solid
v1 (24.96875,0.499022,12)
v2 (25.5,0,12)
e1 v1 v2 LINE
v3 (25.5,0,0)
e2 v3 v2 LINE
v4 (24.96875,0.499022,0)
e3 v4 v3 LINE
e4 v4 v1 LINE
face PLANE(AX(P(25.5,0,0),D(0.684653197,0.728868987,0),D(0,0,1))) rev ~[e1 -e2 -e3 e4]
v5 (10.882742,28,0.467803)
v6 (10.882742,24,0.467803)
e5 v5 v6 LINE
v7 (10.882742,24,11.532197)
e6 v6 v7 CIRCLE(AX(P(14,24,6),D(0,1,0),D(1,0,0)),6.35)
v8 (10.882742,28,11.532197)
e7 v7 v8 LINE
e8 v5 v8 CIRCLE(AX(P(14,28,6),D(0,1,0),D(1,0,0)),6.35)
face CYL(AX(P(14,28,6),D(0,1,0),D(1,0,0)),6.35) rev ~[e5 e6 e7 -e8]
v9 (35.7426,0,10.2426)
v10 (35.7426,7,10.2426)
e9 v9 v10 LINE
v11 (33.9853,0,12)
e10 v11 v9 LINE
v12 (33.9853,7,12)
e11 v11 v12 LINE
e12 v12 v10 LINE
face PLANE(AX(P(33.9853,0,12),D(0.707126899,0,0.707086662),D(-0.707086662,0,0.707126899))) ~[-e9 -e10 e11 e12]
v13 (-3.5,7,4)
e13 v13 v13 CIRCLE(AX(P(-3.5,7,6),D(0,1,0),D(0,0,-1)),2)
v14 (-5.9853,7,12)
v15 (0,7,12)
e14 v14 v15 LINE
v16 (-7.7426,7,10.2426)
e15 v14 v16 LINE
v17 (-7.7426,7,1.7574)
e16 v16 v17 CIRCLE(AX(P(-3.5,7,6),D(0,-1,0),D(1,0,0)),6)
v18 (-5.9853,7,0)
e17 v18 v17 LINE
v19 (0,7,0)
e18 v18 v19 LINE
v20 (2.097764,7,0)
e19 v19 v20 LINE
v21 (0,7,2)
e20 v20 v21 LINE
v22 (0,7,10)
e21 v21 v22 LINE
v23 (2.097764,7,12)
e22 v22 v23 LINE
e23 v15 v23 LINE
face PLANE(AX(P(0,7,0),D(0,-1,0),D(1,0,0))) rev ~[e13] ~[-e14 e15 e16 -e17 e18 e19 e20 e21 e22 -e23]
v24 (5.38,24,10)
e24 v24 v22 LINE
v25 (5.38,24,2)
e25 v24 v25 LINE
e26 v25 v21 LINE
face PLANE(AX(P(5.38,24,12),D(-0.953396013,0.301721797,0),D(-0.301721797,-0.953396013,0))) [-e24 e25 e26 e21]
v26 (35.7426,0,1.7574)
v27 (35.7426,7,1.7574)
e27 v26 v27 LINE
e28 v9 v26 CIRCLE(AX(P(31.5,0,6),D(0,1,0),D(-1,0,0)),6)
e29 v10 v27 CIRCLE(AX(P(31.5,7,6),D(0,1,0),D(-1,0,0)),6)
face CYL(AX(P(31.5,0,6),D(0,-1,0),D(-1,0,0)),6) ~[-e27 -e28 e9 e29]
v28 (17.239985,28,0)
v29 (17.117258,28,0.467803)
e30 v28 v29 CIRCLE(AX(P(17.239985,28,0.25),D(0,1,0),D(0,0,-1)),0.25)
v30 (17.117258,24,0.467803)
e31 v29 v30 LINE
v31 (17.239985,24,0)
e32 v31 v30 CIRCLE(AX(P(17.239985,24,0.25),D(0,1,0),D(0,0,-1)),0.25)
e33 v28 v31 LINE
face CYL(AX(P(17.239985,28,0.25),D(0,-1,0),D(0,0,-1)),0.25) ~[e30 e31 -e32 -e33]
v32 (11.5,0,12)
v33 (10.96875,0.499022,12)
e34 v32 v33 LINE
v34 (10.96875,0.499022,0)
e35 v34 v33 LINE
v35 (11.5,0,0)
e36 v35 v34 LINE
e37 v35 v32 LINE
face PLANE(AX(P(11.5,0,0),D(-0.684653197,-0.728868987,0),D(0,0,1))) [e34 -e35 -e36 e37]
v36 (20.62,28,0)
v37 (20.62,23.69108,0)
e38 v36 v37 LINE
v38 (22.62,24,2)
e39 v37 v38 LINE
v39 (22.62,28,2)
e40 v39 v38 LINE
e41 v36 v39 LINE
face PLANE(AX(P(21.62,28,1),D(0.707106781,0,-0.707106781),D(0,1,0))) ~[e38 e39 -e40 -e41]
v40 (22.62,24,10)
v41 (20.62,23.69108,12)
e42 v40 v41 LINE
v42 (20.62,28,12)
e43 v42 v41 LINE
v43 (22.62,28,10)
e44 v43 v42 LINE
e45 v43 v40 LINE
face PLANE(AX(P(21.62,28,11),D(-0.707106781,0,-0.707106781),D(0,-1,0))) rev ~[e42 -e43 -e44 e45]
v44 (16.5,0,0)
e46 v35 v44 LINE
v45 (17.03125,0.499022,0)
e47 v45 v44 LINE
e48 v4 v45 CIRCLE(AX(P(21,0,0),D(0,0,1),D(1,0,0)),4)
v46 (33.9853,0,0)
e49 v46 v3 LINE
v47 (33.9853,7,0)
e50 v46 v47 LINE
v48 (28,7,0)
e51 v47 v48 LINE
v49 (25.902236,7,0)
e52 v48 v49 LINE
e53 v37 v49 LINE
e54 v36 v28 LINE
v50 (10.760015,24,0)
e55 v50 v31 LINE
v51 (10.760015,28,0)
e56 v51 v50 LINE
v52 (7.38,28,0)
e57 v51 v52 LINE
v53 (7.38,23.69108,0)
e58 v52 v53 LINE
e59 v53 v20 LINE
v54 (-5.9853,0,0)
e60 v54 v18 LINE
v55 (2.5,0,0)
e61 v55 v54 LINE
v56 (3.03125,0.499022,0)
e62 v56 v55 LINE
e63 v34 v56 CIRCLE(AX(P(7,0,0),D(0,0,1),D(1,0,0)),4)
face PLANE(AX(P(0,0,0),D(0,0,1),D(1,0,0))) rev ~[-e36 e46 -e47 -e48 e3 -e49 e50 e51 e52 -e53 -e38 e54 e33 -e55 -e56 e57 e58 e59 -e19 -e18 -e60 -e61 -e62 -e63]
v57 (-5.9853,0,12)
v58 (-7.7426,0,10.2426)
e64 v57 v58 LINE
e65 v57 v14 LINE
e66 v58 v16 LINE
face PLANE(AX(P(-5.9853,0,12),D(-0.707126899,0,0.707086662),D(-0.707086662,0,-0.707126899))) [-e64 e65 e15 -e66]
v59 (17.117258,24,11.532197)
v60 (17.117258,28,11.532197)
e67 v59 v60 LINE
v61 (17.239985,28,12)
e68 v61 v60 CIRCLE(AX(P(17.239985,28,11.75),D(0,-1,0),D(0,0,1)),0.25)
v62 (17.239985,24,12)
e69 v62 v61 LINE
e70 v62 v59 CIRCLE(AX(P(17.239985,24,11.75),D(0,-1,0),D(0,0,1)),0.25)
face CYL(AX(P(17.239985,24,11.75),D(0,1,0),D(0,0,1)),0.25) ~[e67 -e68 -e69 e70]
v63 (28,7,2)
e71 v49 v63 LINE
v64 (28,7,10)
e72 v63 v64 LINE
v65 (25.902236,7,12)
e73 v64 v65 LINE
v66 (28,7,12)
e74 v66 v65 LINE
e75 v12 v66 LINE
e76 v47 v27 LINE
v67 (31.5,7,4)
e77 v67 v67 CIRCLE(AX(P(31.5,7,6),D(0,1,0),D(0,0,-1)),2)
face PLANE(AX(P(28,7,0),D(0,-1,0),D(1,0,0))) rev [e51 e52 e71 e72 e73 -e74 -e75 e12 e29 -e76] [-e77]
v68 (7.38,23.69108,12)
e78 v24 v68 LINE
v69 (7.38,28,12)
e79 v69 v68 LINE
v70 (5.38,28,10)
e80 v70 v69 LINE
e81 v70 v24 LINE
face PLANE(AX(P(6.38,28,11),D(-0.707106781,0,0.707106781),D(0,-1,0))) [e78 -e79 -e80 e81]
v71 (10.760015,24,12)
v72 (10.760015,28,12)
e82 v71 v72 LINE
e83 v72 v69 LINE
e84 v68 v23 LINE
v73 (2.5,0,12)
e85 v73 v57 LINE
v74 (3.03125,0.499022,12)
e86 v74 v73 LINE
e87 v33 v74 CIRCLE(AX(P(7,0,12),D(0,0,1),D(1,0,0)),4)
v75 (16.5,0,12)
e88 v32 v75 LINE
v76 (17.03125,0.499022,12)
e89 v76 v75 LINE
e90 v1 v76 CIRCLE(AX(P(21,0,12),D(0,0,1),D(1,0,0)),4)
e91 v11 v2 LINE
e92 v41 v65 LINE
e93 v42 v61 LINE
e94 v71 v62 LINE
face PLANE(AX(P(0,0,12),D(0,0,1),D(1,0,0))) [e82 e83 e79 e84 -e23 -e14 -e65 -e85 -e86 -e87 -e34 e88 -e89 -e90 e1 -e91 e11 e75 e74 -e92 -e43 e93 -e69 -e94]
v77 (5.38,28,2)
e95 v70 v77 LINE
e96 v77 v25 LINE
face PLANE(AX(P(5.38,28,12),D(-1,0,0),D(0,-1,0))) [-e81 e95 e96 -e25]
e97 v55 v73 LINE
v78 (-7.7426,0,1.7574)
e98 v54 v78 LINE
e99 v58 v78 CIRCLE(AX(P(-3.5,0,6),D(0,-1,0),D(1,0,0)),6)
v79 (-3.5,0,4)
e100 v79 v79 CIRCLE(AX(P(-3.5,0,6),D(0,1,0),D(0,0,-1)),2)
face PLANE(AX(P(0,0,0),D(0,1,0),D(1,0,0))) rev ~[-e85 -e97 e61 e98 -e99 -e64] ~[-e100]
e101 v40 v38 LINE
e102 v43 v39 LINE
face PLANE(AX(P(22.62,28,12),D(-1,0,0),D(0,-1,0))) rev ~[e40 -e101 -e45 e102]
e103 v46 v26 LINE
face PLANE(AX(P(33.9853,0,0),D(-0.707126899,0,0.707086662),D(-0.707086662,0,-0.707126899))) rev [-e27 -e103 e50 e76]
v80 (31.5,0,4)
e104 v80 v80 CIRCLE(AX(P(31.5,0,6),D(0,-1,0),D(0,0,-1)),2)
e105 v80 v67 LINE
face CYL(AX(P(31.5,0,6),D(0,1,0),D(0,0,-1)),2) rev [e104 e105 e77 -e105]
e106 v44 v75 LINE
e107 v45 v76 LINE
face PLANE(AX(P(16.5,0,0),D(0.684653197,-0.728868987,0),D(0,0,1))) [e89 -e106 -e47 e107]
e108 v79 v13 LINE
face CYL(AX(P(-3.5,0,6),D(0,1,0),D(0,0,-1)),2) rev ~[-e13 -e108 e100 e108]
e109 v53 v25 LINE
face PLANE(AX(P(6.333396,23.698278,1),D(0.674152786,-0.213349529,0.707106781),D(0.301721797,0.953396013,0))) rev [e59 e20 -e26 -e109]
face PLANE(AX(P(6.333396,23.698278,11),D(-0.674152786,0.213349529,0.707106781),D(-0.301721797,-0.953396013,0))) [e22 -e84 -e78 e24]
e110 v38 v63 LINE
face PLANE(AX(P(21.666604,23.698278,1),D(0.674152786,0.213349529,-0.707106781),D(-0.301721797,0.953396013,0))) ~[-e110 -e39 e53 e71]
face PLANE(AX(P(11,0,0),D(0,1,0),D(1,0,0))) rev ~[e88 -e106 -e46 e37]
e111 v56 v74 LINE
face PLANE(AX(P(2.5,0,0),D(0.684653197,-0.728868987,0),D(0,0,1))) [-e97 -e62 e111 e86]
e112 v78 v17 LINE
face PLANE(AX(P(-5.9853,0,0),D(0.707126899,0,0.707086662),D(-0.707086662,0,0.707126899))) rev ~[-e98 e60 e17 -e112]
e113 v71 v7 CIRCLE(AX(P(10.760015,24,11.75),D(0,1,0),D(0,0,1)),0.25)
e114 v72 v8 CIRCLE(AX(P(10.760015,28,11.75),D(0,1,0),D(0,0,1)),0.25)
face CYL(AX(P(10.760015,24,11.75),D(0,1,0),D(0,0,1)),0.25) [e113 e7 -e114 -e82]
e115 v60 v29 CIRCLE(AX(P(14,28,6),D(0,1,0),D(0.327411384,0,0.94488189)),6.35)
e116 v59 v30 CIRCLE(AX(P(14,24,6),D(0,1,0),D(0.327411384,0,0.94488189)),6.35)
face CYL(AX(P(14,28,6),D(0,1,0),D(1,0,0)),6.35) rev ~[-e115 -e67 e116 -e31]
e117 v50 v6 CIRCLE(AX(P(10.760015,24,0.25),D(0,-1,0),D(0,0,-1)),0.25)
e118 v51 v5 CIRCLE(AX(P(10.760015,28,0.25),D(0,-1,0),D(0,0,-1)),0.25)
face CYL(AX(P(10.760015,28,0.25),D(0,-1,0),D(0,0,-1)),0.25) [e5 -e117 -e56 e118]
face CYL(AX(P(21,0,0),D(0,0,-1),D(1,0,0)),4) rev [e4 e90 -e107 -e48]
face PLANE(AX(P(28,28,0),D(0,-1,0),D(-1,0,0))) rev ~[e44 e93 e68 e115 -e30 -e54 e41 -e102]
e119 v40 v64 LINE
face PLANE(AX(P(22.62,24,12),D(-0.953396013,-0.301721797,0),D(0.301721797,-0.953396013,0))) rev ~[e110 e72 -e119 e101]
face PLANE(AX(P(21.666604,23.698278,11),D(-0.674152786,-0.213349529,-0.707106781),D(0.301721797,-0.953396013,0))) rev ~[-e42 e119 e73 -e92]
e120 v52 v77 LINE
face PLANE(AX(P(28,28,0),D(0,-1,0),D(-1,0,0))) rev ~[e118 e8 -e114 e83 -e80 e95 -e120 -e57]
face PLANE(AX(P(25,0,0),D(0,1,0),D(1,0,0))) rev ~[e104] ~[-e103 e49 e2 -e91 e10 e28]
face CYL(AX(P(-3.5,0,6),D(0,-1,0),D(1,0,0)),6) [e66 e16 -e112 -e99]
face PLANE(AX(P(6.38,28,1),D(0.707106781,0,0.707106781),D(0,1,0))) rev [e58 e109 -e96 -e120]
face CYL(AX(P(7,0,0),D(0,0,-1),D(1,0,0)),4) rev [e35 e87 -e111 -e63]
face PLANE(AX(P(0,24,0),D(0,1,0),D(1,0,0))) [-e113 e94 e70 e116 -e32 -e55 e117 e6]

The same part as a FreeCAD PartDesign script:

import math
import FreeCAD as App
import Part
import Sketcher
Q = App.Units.Quantity


def edges_at(feature, points):
    """Names of the edges that pass closest to the given points."""
    edges = feature.Shape.Edges
    near = lambda p: min(range(len(edges)), key=lambda i: edges[i].distToShape(Part.Vertex(*p))[0])
    return sorted({f"Edge{near(p) + 1}" for p in points})

doc = App.newDocument("Part")
body = doc.addObject("PartDesign::Body", "Body")

sketch1 = body.newObject("Sketcher::SketchObject", "Sketch")
sketch1.AttachmentSupport = (doc.getObject("XY_Plane"), [""])
sketch1.MapMode = "FlatFace"
sketch1.addGeometry([
    Part.ArcOfCircle(Part.Circle(App.Vector(21, 0, 0), App.Vector(0, 0, 1), 4), math.radians(0), math.radians(180)),
    Part.LineSegment(App.Vector(25, 0, 0), App.Vector(28, 0, 0)),
    Part.LineSegment(App.Vector(28, 0, 0), App.Vector(28, 28, 0)),
    Part.LineSegment(App.Vector(28, 28, 0), App.Vector(0, 28, 0)),
    Part.LineSegment(App.Vector(0, 28, 0), App.Vector(0, 0, 0)),
    Part.LineSegment(App.Vector(0, 0, 0), App.Vector(3, 0, 0)),
    Part.ArcOfCircle(Part.Circle(App.Vector(7, 0, 0), App.Vector(0, 0, 1), 4), math.radians(0), math.radians(180)),
    Part.LineSegment(App.Vector(11, 0, 0), App.Vector(17, 0, 0)),
], False)
sketch1.addConstraint([
    Sketcher.Constraint("Coincident", 0, 1, 1, 1),
    Sketcher.Constraint("Coincident", 1, 2, 2, 1),
    Sketcher.Constraint("Coincident", 2, 2, 3, 1),
    Sketcher.Constraint("Coincident", 3, 2, 4, 1),
    Sketcher.Constraint("Coincident", 4, 2, 5, 1),
    Sketcher.Constraint("Coincident", 5, 2, 6, 2),
    Sketcher.Constraint("Coincident", 6, 1, 7, 1),
    Sketcher.Constraint("Coincident", 7, 2, 0, 2),
    Sketcher.Constraint("Horizontal", 1),
    Sketcher.Constraint("Vertical", 2),
    Sketcher.Constraint("Horizontal", 3),
    Sketcher.Constraint("Vertical", 4),
    Sketcher.Constraint("Horizontal", 5),
    Sketcher.Constraint("Horizontal", 7),
    Sketcher.Constraint("Coincident", 4, 2, -1, 1),
    Sketcher.Constraint("Equal", 0, 6),
    Sketcher.Constraint("PointOnObject", 0, 3, -1),
    Sketcher.Constraint("PointOnObject", 6, 3, -1),
    Sketcher.Constraint("PointOnObject", 0, 1, -1),
    Sketcher.Constraint("PointOnObject", 6, 1, -1),
    Sketcher.Constraint("Equal", 1, 5),
    Sketcher.Constraint("Equal", 3, 2),
    Sketcher.Constraint("Radius", 0, Q("4 mm")),
    Sketcher.Constraint("DistanceX", 3, 2, 3, 1, Q("28 mm")),
    Sketcher.Constraint("DistanceX", -1, 1, 6, 3, Q("7 mm")),
])
pad1 = body.newObject("PartDesign::Pad", "Pad")
pad1.Profile = sketch1
pad1.Length = 12
doc.recompute()

chamfer = body.newObject("PartDesign::Chamfer", "Chamfer")
chamfer.Base = (pad1, edges_at(pad1, [
    (3, 0, 6),
    (11, 0, 6),
    (17, 0, 6),
    (25, 0, 6),
]))
chamfer.Size = 0.5

sketch2 = body.newObject("Sketcher::SketchObject", "Sketch001")
sketch2.AttachmentSupport = (doc.getObject("XZ_Plane"), [""])
sketch2.MapMode = "FlatFace"
sketch2.AttachmentOffset = App.Placement(App.Vector(0, 0, -28), App.Rotation())
sketch2.addGeometry([
    Part.ArcOfCircle(Part.Circle(App.Vector(14, 6, 0), App.Vector(0, 0, 1), 6.35), math.radians(-70.888268), math.radians(250.888268)),
    Part.LineSegment(App.Vector(16.079062, 0, 0), App.Vector(11.920938, 0, 0)),
], False)
sketch2.addConstraint([
    Sketcher.Constraint("Coincident", 0, 1, 1, 1),
    Sketcher.Constraint("Coincident", 1, 2, 0, 2),
    Sketcher.Constraint("Horizontal", 1),
    Sketcher.Constraint("PointOnObject", 0, 1, -1),
    Sketcher.Constraint("Radius", 0, Q("6.35 mm")),
    Sketcher.Constraint("DistanceX", -1, 1, 0, 3, Q("14 mm")),
    Sketcher.Constraint("DistanceY", -1, 1, 0, 3, Q("6 mm")),
])
pocket1 = body.newObject("PartDesign::Pocket", "Pocket")
pocket1.Profile = sketch2
pocket1.Length = 4
pocket1.Reversed = True
doc.recompute()

fillet = body.newObject("PartDesign::Fillet", "Fillet")
fillet.Base = (pocket1, edges_at(pocket1, [
    (11.921, 26, 0),
    (16.079, 26, 0),
    (11.921, 26, 12),
    (16.079, 26, 12),
]))
fillet.Radius = 0.25

sketch3 = body.newObject("Sketcher::SketchObject", "Sketch002")
sketch3.AttachmentSupport = (doc.getObject("XZ_Plane"), [""])
sketch3.MapMode = "FlatFace"
sketch3.addGeometry([
    Part.LineSegment(App.Vector(0, 12, 0), App.Vector(-5.9853, 12, 0)),
    Part.LineSegment(App.Vector(-5.9853, 12, 0), App.Vector(-7.7426, 10.2426, 0)),
    Part.ArcOfCircle(Part.Circle(App.Vector(-3.5, 6, 0), App.Vector(0, 0, 1), 6), math.radians(135), math.radians(225)),
    Part.LineSegment(App.Vector(-7.7426, 1.7574, 0), App.Vector(-5.9853, 0, 0)),
    Part.LineSegment(App.Vector(-5.9853, 0, 0), App.Vector(0, 0, 0)),
    Part.LineSegment(App.Vector(0, 0, 0), App.Vector(0, 12, 0)),
], False)
sketch3.addConstraint([
    Sketcher.Constraint("Coincident", 0, 2, 1, 1),
    Sketcher.Constraint("Tangent", 1, 2, 2, 1),
    Sketcher.Constraint("Tangent", 2, 2, 3, 1),
    Sketcher.Constraint("Coincident", 3, 2, 4, 1),
    Sketcher.Constraint("Coincident", 4, 2, 5, 1),
    Sketcher.Constraint("Coincident", 5, 2, 0, 1),
    Sketcher.Constraint("Horizontal", 0),
    Sketcher.Constraint("Horizontal", 4),
    Sketcher.Constraint("Vertical", 5),
    Sketcher.Constraint("Coincident", 4, 2, -1, 1),
    Sketcher.Constraint("Perpendicular", 1, 3),
    Sketcher.Constraint("Vertical", 1, 2, 2, 2),
    Sketcher.Constraint("Vertical", 0, 2, 3, 2),
    Sketcher.Constraint("Radius", 2, Q("6 mm")),
    Sketcher.Constraint("DistanceY", 5, 1, 5, 2, Q("12 mm")),
    Sketcher.Constraint("DistanceX", 2, 3, -1, 1, Q("3.5 mm")),
])
pad2 = body.newObject("PartDesign::Pad", "Pad001")
pad2.Profile = sketch3
pad2.Length = 7
pad2.Reversed = True

sketch4 = body.newObject("Sketcher::SketchObject", "Sketch003")
sketch4.AttachmentSupport = (doc.getObject("XZ_Plane"), [""])
sketch4.MapMode = "FlatFace"
sketch4.addGeometry(Part.Circle(App.Vector(-3.5, 6, 0), App.Vector(0, 0, 1), 2), False)
sketch4.addConstraint([
    Sketcher.Constraint("Diameter", 0, Q("4 mm")),
    Sketcher.Constraint("DistanceY", -1, 1, 0, 3, Q("6 mm")),
    Sketcher.Constraint("DistanceX", 0, 3, -1, 1, Q("3.5 mm")),
])
doc.recompute()
hole = body.newObject("PartDesign::Hole", "Hole")
hole.Profile = sketch4
hole.ThreadType = "None"
hole.Diameter = 4
hole.DepthType = "ThroughAll"
doc.recompute()

datumplane = body.newObject("PartDesign::Plane", "DatumPlane")
datumplane.AttachmentSupport = (doc.getObject("YZ_Plane"), [""])
datumplane.MapMode = "FlatFace"
datumplane.AttachmentOffset = App.Placement(App.Vector(0, 0, 14), App.Rotation())
mirrored = body.newObject("PartDesign::Mirrored", "Mirrored")
mirrored.Originals = [pad2, hole]
mirrored.MirrorPlane = (datumplane, [""])
body.Tip = mirrored

sketch5 = body.newObject("Sketcher::SketchObject", "Sketch004")
sketch5.AttachmentSupport = (doc.getObject("XY_Plane"), [""])
sketch5.MapMode = "FlatFace"
sketch5.AttachmentOffset = App.Placement(App.Vector(0, 0, 12), App.Rotation())
sketch5.addGeometry([
    Part.LineSegment(App.Vector(28, 7, 0), App.Vector(28, 28, 0)),
    Part.LineSegment(App.Vector(28, 28, 0), App.Vector(22.62, 28, 0)),
    Part.LineSegment(App.Vector(22.62, 28, 0), App.Vector(22.62, 24, 0)),
    Part.LineSegment(App.Vector(22.62, 24, 0), App.Vector(28, 7, 0)),
    Part.LineSegment(App.Vector(5.38, 24, 0), App.Vector(5.38, 28, 0)),
    Part.LineSegment(App.Vector(5.38, 28, 0), App.Vector(0, 28, 0)),
    Part.LineSegment(App.Vector(0, 28, 0), App.Vector(0, 7, 0)),
    Part.LineSegment(App.Vector(0, 7, 0), App.Vector(5.38, 24, 0)),
], False)
sketch5.addConstraint([
    Sketcher.Constraint("Coincident", 0, 2, 1, 1),
    Sketcher.Constraint("Coincident", 1, 2, 2, 1),
    Sketcher.Constraint("Coincident", 2, 2, 3, 1),
    Sketcher.Constraint("Coincident", 3, 2, 0, 1),
    Sketcher.Constraint("Coincident", 4, 2, 5, 1),
    Sketcher.Constraint("Coincident", 5, 2, 6, 1),
    Sketcher.Constraint("Coincident", 6, 2, 7, 1),
    Sketcher.Constraint("Coincident", 7, 2, 4, 1),
    Sketcher.Constraint("Vertical", 0),
    Sketcher.Constraint("Horizontal", 1),
    Sketcher.Constraint("Vertical", 2),
    Sketcher.Constraint("Vertical", 4),
    Sketcher.Constraint("Horizontal", 5),
    Sketcher.Constraint("Vertical", 6),
    Sketcher.Constraint("PointOnObject", 5, 2, -2),
    Sketcher.Constraint("Horizontal", 1, 2, 4, 2),
    Sketcher.Constraint("Horizontal", 3, 2, 6, 2),
    Sketcher.Constraint("Horizontal", 2, 2, 7, 2),
    Sketcher.Constraint("Equal", 1, 5),
    Sketcher.Constraint("DistanceY", 0, 1, 0, 2, Q("21 mm")),
    Sketcher.Constraint("DistanceY", 2, 2, 2, 1, Q("4 mm")),
    Sketcher.Constraint("DistanceX", -1, 1, 0, 2, Q("28 mm")),
    Sketcher.Constraint("DistanceY", -1, 1, 0, 2, Q("28 mm")),
    Sketcher.Constraint("DistanceX", 1, 2, 1, 1, Q("5.38 mm")),
])
pocket2 = body.newObject("PartDesign::Pocket", "Pocket001")
pocket2.Profile = sketch5
pocket2.Type = "ThroughAll"
doc.recompute()

chamfer2 = body.newObject("PartDesign::Chamfer", "Chamfer001")
chamfer2.Base = (pocket2, edges_at(pocket2, [
    (22.62, 26, 12),
    (25.31, 15.5, 12),
    (22.62, 26, 0),
    (25.31, 15.5, 0),
    (2.69, 15.5, 12),
    (2.69, 15.5, 0),
    (5.38, 26, 0),
    (5.38, 26, 12),
]))
chamfer2.Size = 2

doc.recompute()
